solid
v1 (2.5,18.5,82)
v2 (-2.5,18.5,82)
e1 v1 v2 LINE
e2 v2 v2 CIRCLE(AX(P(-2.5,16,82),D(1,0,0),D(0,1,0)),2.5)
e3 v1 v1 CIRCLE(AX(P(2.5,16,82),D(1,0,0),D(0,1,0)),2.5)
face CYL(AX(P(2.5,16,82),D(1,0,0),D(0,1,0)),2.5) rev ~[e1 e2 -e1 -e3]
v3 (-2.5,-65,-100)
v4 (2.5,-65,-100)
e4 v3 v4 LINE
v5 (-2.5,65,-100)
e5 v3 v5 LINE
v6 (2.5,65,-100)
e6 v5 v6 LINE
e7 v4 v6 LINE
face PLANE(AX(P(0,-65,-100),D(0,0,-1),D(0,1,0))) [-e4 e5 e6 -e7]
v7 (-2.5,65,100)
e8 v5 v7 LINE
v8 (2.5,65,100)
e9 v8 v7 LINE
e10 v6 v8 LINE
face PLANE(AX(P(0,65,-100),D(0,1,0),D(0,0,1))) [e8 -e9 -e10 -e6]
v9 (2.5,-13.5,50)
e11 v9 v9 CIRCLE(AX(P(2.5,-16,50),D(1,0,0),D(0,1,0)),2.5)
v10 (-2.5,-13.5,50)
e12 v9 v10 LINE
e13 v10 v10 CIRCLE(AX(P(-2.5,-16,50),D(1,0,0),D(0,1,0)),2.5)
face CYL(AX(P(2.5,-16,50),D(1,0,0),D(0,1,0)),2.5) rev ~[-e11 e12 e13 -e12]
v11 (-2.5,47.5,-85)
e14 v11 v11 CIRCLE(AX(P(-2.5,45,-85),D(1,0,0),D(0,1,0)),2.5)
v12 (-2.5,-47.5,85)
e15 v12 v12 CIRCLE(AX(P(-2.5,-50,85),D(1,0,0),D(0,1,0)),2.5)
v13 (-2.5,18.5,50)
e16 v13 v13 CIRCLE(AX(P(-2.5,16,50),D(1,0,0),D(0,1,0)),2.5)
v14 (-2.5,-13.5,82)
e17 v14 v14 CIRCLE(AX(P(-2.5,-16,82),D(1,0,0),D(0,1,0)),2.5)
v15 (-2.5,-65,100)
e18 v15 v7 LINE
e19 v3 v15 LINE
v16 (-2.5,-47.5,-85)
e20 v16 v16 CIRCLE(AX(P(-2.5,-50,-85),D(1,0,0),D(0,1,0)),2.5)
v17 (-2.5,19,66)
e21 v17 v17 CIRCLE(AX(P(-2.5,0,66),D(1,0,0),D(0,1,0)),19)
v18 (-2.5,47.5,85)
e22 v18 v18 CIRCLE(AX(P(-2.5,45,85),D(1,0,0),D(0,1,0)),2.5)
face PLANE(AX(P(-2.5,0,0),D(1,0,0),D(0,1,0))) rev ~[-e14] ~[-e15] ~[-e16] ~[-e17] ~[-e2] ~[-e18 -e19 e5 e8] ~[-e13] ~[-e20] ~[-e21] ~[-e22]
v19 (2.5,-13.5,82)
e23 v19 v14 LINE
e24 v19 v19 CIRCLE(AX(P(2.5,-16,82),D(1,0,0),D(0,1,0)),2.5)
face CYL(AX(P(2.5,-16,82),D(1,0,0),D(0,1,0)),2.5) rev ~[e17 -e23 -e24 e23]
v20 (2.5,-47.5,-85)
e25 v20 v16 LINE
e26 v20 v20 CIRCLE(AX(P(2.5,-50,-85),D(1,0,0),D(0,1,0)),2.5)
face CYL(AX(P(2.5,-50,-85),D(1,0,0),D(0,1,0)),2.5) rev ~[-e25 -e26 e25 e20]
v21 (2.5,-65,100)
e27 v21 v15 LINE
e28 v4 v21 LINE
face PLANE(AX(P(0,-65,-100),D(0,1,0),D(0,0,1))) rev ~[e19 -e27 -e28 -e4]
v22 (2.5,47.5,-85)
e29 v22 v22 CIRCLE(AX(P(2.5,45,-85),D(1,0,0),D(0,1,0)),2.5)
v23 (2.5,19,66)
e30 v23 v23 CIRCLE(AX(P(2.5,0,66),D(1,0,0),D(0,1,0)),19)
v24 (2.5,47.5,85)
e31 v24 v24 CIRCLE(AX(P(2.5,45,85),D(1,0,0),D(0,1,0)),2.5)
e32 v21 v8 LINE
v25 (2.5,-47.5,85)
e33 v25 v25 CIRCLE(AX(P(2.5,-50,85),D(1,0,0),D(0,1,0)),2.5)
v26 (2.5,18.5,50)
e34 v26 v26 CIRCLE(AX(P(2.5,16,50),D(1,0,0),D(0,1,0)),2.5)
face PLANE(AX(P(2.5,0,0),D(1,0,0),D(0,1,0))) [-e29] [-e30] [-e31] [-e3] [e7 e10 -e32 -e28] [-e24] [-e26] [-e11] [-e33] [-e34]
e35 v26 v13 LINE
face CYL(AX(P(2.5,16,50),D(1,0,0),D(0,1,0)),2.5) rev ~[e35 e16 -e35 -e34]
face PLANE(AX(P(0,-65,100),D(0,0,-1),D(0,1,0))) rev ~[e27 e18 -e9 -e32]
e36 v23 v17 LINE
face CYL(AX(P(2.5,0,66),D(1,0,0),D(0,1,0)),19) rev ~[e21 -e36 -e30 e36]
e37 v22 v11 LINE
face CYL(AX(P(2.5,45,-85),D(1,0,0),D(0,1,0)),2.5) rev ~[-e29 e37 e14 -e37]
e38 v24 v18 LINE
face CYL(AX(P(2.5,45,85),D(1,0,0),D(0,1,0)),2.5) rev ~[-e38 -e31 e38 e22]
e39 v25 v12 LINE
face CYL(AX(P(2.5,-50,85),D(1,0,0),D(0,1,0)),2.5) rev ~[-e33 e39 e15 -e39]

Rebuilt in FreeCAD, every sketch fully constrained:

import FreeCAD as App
import Part
import Sketcher

V = App.Vector
Q = App.Units.Quantity

doc = App.newDocument("Part")
params = doc.addObject("Spreadsheet::Sheet", "Params")
for row, (alias, value) in enumerate([
    ("sketch1_width", "130 mm"),
    ("sketch1_height", "200 mm"),
    ("pad1_length", "5 mm"),
    ("sketch2_diameter", "5 mm"),
    ("sketch3_diameter", "38 mm"),
    ("sketch3_diameter2", "5 mm"),
], start=1):
    params.set(f"A{row}", alias)
    params.set(f"B{row}", "=" + value)
    params.setAlias(f"B{row}", alias)

body = doc.addObject("PartDesign::Body", "Body")

sketch1 = body.newObject("Sketcher::SketchObject", "Sketch")
sketch1.AttachmentSupport = (doc.getObject("YZ_Plane"), [""])
sketch1.MapMode = "FlatFace"
sketch1.addGeometry(Part.LineSegment(V(-65, 100, 0), V(-65, -100, 0)), False)
sketch1.addGeometry(Part.LineSegment(V(-65, -100, 0), V(65, -100, 0)), False)
sketch1.addGeometry(Part.LineSegment(V(65, -100, 0), V(65, 100, 0)), False)
sketch1.addGeometry(Part.LineSegment(V(65, 100, 0), V(-65, 100, 0)), False)
sketch1.addConstraint(Sketcher.Constraint("Coincident", 0, 2, 1, 1))
sketch1.addConstraint(Sketcher.Constraint("Coincident", 1, 2, 2, 1))
sketch1.addConstraint(Sketcher.Constraint("Coincident", 2, 2, 3, 1))
sketch1.addConstraint(Sketcher.Constraint("Coincident", 3, 2, 0, 1))
sketch1.addConstraint(Sketcher.Constraint("Vertical", 0))
sketch1.addConstraint(Sketcher.Constraint("Horizontal", 1))
sketch1.addConstraint(Sketcher.Constraint("Vertical", 2))
sketch1.addConstraint(Sketcher.Constraint("Horizontal", 3))
sketch1.addConstraint(Sketcher.Constraint("Symmetric", 0, 2, 2, 2, -1, 1))
sketch1.addConstraint(Sketcher.Constraint("DistanceX", 1, 1, 1, 2, Q("130 mm")))
sketch1.addConstraint(Sketcher.Constraint("DistanceY", 0, 2, 0, 1, Q("200 mm")))
sketch1.setExpression("Constraints[9]", "Params.sketch1_width")
sketch1.setExpression("Constraints[10]", "Params.sketch1_height")
pad1 = body.newObject("PartDesign::Pad", "Pad")
pad1.Profile = sketch1
pad1.setExpression("Length", "Params.pad1_length")
pad1.Midplane = True

sketch2 = body.newObject("Sketcher::SketchObject", "Sketch001")
sketch2.AttachmentSupport = (doc.getObject("YZ_Plane"), [""])
sketch2.MapMode = "FlatFace"
sketch2.AttachmentOffset = App.Placement(V(0, 0, 2.5), App.Rotation())
sketch2.addGeometry(Part.Circle(V(-50, 85, 0), V(0, 0, 1), 2.5), False)
sketch2.addGeometry(Part.Circle(V(45, 85, 0), V(0, 0, 1), 2.5), False)
sketch2.addGeometry(Part.Circle(V(-50, -85, 0), V(0, 0, 1), 2.5), False)
sketch2.addGeometry(Part.Circle(V(45, -85, 0), V(0, 0, 1), 2.5), False)
sketch2.addConstraint(Sketcher.Constraint("Equal", 0, 1))
sketch2.addConstraint(Sketcher.Constraint("Equal", 1, 2))
sketch2.addConstraint(Sketcher.Constraint("Equal", 2, 3))
sketch2.addConstraint(Sketcher.Constraint("Symmetric", 0, 3, 2, 3, -1))
sketch2.addConstraint(Sketcher.Constraint("Symmetric", 1, 3, 3, 3, -1))
sketch2.addConstraint(Sketcher.Constraint("Horizontal", 0, 3, 1, 3))
sketch2.addConstraint(Sketcher.Constraint("Diameter", 0, Q("5 mm")))
sketch2.addConstraint(Sketcher.Constraint("DistanceX", 0, 3, -1, 1, Q("50 mm")))
sketch2.addConstraint(Sketcher.Constraint("DistanceY", -1, 1, 0, 3, Q("85 mm")))
sketch2.addConstraint(Sketcher.Constraint("DistanceX", -1, 1, 1, 3, Q("45 mm")))
sketch2.setExpression("Constraints[6]", "Params.sketch2_diameter")
pocket1 = body.newObject("PartDesign::Pocket", "Pocket")
pocket1.Profile = sketch2
pocket1.Type = "ThroughAll"

sketch3 = body.newObject("Sketcher::SketchObject", "Sketch002")
sketch3.AttachmentSupport = (doc.getObject("YZ_Plane"), [""])
sketch3.MapMode = "FlatFace"
sketch3.AttachmentOffset = App.Placement(V(0, 0, 2.5), App.Rotation())
sketch3.addGeometry(Part.Circle(V(0, 66, 0), V(0, 0, 1), 19), False)
sketch3.addGeometry(Part.Circle(V(-16, 82, 0), V(0, 0, 1), 2.5), False)
sketch3.addGeometry(Part.Circle(V(16, 82, 0), V(0, 0, 1), 2.5), False)
sketch3.addGeometry(Part.Circle(V(16, 50, 0), V(0, 0, 1), 2.5), False)
sketch3.addGeometry(Part.Circle(V(-16, 50, 0), V(0, 0, 1), 2.5), False)
sketch3.addConstraint(Sketcher.Constraint("Equal", 1, 2))
sketch3.addConstraint(Sketcher.Constraint("Equal", 2, 3))
sketch3.addConstraint(Sketcher.Constraint("Equal", 3, 4))
sketch3.addConstraint(Sketcher.Constraint("Symmetric", 1, 3, 2, 3, -2))
sketch3.addConstraint(Sketcher.Constraint("Symmetric", 3, 3, 4, 3, -2))
sketch3.addConstraint(Sketcher.Constraint("PointOnObject", 0, 3, -2))
sketch3.addConstraint(Sketcher.Constraint("Vertical", 2, 3, 3, 3))
sketch3.addConstraint(Sketcher.Constraint("Diameter", 0, Q("38 mm")))
sketch3.addConstraint(Sketcher.Constraint("Diameter", 1, Q("5 mm")))
sketch3.addConstraint(Sketcher.Constraint("DistanceY", -1, 1, 0, 3, Q("66 mm")))
sketch3.addConstraint(Sketcher.Constraint("DistanceX", 1, 3, -1, 1, Q("16 mm")))
sketch3.addConstraint(Sketcher.Constraint("DistanceY", -1, 1, 1, 3, Q("82 mm")))
sketch3.addConstraint(Sketcher.Constraint("DistanceY", -1, 1, 3, 3, Q("50 mm")))
sketch3.setExpression("Constraints[7]", "Params.sketch3_diameter")
sketch3.setExpression("Constraints[8]", "Params.sketch3_diameter2")
pocket2 = body.newObject("PartDesign::Pocket", "Pocket001")
pocket2.Profile = sketch3
pocket2.Type = "ThroughAll"

doc.recompute()
